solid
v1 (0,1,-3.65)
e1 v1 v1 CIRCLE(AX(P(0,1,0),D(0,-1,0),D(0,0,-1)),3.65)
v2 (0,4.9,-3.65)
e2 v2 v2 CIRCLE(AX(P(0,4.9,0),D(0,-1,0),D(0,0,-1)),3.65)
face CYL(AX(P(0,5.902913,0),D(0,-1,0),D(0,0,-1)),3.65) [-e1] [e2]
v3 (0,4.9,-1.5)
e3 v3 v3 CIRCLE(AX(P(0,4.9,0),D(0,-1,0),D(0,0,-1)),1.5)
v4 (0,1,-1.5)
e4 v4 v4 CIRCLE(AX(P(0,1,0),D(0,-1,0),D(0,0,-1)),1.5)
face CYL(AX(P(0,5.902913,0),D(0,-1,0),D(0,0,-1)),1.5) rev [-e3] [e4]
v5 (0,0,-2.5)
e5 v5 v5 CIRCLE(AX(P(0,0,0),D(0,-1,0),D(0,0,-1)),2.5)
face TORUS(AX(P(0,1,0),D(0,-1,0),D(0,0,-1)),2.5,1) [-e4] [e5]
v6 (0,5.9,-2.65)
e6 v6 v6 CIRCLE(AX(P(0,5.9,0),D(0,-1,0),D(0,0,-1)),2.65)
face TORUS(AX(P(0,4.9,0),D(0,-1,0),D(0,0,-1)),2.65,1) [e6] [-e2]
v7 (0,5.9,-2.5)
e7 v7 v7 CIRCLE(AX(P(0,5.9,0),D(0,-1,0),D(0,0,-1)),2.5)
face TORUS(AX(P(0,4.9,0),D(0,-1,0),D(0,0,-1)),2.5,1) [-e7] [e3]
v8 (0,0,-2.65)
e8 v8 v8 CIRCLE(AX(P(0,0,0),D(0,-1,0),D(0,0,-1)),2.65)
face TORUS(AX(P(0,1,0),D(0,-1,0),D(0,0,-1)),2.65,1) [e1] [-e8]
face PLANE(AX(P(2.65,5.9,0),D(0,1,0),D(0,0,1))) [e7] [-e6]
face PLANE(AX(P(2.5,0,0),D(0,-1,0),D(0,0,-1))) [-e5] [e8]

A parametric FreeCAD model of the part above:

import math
import FreeCAD as App
import Part
import Sketcher

doc = App.newDocument("Part")
body = doc.addObject("PartDesign::Body", "Body")

# Sketch on XY plane
sketch1 = doc.addObject("Sketcher::SketchObject", "Sketch")
body.addObject(sketch1)
sketch1.AttachmentSupport = (doc.XY_Plane, [""])
sketch1.MapMode = "FlatFace"
sketch1.addGeometry([
    Part.LineSegment(App.Vector(1.5, 4.9, 0), App.Vector(1.5, 1, 0)),  # 0
    Part.ArcOfCircle(Part.Circle(App.Vector(2.5, 1, 0), App.Vector(0, 0, 1), 1), math.radians(-180), math.radians(-90)),  # 1
    Part.LineSegment(App.Vector(2.5, 0, 0), App.Vector(2.65, 0, 0)),  # 2
    Part.ArcOfCircle(Part.Circle(App.Vector(2.65, 1, 0), App.Vector(0, 0, 1), 1), math.radians(-90), math.radians(0)),  # 3
    Part.LineSegment(App.Vector(3.65, 1, 0), App.Vector(3.65, 4.9, 0)),  # 4
    Part.ArcOfCircle(Part.Circle(App.Vector(2.65, 4.9, 0), App.Vector(0, 0, 1), 1), math.radians(0), math.radians(90)),  # 5
    Part.LineSegment(App.Vector(2.65, 5.9, 0), App.Vector(2.5, 5.9, 0)),  # 6
    Part.ArcOfCircle(Part.Circle(App.Vector(2.5, 4.9, 0), App.Vector(0, 0, 1), 1), math.radians(90), math.radians(180)),  # 7
], False)
sketch1.addConstraint([
    Sketcher.Constraint("Tangent", 0, 2, 1, 1),
    Sketcher.Constraint("Tangent", 1, 2, 2, 1),
    Sketcher.Constraint("Tangent", 2, 2, 3, 1),
    Sketcher.Constraint("Tangent", 3, 2, 4, 1),
    Sketcher.Constraint("Tangent", 4, 2, 5, 1),
    Sketcher.Constraint("Tangent", 5, 2, 6, 1),
    Sketcher.Constraint("Tangent", 6, 2, 7, 1),
    Sketcher.Constraint("Tangent", 7, 2, 0, 1),
    Sketcher.Constraint("Vertical", 0),
    Sketcher.Constraint("Horizontal", 2),
    Sketcher.Constraint("Vertical", 4),
    Sketcher.Constraint("Horizontal", 6),
    Sketcher.Constraint("Equal", 1, 3),
    Sketcher.Constraint("Equal", 3, 5),
    Sketcher.Constraint("Equal", 5, 7),
    Sketcher.Constraint("PointOnObject", 1, 2, -1),
    Sketcher.Constraint("Radius", 1, 1.0),
    Sketcher.Constraint("DistanceY", 0, 2, 0, 1, 3.9),
    Sketcher.Constraint("DistanceX", 2, 1, 2, 2, 0.15),
    Sketcher.Constraint("DistanceX", -1, 1, 1, 3, 2.5),
])
revolution = doc.addObject("PartDesign::Revolution", "Revolution")
body.addObject(revolution)
revolution.Profile = sketch1
revolution.ReferenceAxis = (sketch1, ["V_Axis"])
revolution.Angle = 360

doc.recompute()
